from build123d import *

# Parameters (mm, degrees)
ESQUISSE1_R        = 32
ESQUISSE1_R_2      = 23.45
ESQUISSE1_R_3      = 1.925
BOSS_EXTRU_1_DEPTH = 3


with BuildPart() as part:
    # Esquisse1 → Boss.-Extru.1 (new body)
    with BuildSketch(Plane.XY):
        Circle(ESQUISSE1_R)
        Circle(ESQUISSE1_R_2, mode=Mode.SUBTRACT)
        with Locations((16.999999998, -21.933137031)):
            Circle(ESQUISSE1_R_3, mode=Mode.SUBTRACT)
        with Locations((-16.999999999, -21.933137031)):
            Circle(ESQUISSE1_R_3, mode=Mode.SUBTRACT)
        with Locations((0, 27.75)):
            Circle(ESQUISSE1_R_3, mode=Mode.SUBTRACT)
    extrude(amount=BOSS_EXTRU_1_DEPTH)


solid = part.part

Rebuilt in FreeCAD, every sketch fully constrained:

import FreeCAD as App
import Part
import Sketcher

doc = App.newDocument("Part")
body = doc.addObject("PartDesign::Body", "Body")

# Sketch on XY plane
sketch1 = doc.addObject("Sketcher::SketchObject", "Sketch")
body.addObject(sketch1)
sketch1.AttachmentSupport = (doc.XY_Plane, [""])
sketch1.MapMode = "FlatFace"
sketch1.addGeometry([
    Part.Circle(App.Vector(0, 0, 0), App.Vector(0, 0, 1), 32),  # 0
    Part.Circle(App.Vector(-17, -21.9, 0), App.Vector(0, 0, 1), 1.9),  # 1
    Part.Circle(App.Vector(17, -21.9, 0), App.Vector(0, 0, 1), 1.9),  # 2
    Part.Circle(App.Vector(0, 0, 0), App.Vector(0, 0, 1), 23.4),  # 3
    Part.Circle(App.Vector(0, 27.8, 0), App.Vector(0, 0, 1), 1.9),  # 4
], False)
sketch1.addConstraint([
    Sketcher.Constraint("Coincident", 0, 3, -1, 1),
    Sketcher.Constraint("Coincident", 3, 3, -1, 1),
    Sketcher.Constraint("Equal", 1, 2),
    Sketcher.Constraint("Equal", 2, 4),
    Sketcher.Constraint("Symmetric", 1, 3, 2, 3, -2),
    Sketcher.Constraint("PointOnObject", 4, 3, -2),
    Sketcher.Constraint("Diameter", 0, 64.0),
    Sketcher.Constraint("Diameter", 3, 46.9),
    Sketcher.Constraint("Diameter", 1, 3.85),
    Sketcher.Constraint("DistanceX", 1, 3, -1, 1, 17.0),
    Sketcher.Constraint("DistanceY", -1, 1, 4, 3, 27.75),
    Sketcher.Constraint("DistanceY", 1, 3, -1, 1, 21.933137),
])
pad1 = doc.addObject("PartDesign::Pad", "Pad")
body.addObject(pad1)
pad1.Profile = sketch1
pad1.Length = 3

doc.recompute()
